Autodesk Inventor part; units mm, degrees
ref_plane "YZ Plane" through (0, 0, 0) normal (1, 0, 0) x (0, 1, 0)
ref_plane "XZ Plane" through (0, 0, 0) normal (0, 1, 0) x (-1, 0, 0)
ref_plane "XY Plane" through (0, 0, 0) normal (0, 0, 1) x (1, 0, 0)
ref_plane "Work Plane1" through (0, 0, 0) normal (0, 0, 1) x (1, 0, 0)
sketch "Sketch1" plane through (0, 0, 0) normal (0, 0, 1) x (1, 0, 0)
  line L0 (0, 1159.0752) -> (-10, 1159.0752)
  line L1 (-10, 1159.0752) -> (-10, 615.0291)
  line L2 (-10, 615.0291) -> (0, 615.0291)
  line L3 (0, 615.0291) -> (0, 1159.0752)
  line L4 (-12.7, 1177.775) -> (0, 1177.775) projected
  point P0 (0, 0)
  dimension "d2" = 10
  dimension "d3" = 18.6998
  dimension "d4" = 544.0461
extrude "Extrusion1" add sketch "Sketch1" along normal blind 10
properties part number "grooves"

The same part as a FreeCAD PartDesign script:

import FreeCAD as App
import Part
import Sketcher
from FreeCAD import Vector


def add_polygon(sketch, points):
    """Adds a closed chain of lines whose ends are joined by coincident constraints."""
    first, n = sketch.GeometryCount, len(points)
    for a, b in zip(points, points[1:] + points[:1]):
        sketch.addGeometry(Part.LineSegment(App.Vector(*a, 0), App.Vector(*b, 0)), False)
    for i in range(n):
        sketch.addConstraint(Sketcher.Constraint("Coincident", first + i, 2, first + (i + 1) % n, 1))

doc = App.newDocument("Part")
body = doc.addObject("PartDesign::Body", "Body")

# Sketch on XY plane
sketch1 = doc.addObject("Sketcher::SketchObject", "Sketch")
body.addObject(sketch1)
sketch1.AttachmentSupport = (doc.XY_Plane, [""])
sketch1.MapMode = "FlatFace"
add_polygon(sketch1, [(0, 615), (0, 1159), (-10, 1159), (-10, 615)])  # lines 0-3
sketch1.addConstraint(Sketcher.Constraint("Vertical", 0))
sketch1.addConstraint(Sketcher.Constraint("Horizontal", 1))
sketch1.addConstraint(Sketcher.Constraint("Vertical", 2))
sketch1.addConstraint(Sketcher.Constraint("Horizontal", 3))
sketch1.addConstraint(Sketcher.Constraint("PointOnObject", 0, 2, -2))
sketch1.addConstraint(Sketcher.Constraint("DistanceX", 1, 2, 1, 1, 10.0))
sketch1.addConstraint(Sketcher.Constraint("DistanceY", 0, 1, 0, 2, 544.046))
sketch1.addConstraint(Sketcher.Constraint("DistanceY", -1, 1, 2, 2, 615.029))
pad1 = doc.addObject("PartDesign::Pad", "Pad")
body.addObject(pad1)
pad1.Profile = sketch1
pad1.Length = 10

doc.recompute()
